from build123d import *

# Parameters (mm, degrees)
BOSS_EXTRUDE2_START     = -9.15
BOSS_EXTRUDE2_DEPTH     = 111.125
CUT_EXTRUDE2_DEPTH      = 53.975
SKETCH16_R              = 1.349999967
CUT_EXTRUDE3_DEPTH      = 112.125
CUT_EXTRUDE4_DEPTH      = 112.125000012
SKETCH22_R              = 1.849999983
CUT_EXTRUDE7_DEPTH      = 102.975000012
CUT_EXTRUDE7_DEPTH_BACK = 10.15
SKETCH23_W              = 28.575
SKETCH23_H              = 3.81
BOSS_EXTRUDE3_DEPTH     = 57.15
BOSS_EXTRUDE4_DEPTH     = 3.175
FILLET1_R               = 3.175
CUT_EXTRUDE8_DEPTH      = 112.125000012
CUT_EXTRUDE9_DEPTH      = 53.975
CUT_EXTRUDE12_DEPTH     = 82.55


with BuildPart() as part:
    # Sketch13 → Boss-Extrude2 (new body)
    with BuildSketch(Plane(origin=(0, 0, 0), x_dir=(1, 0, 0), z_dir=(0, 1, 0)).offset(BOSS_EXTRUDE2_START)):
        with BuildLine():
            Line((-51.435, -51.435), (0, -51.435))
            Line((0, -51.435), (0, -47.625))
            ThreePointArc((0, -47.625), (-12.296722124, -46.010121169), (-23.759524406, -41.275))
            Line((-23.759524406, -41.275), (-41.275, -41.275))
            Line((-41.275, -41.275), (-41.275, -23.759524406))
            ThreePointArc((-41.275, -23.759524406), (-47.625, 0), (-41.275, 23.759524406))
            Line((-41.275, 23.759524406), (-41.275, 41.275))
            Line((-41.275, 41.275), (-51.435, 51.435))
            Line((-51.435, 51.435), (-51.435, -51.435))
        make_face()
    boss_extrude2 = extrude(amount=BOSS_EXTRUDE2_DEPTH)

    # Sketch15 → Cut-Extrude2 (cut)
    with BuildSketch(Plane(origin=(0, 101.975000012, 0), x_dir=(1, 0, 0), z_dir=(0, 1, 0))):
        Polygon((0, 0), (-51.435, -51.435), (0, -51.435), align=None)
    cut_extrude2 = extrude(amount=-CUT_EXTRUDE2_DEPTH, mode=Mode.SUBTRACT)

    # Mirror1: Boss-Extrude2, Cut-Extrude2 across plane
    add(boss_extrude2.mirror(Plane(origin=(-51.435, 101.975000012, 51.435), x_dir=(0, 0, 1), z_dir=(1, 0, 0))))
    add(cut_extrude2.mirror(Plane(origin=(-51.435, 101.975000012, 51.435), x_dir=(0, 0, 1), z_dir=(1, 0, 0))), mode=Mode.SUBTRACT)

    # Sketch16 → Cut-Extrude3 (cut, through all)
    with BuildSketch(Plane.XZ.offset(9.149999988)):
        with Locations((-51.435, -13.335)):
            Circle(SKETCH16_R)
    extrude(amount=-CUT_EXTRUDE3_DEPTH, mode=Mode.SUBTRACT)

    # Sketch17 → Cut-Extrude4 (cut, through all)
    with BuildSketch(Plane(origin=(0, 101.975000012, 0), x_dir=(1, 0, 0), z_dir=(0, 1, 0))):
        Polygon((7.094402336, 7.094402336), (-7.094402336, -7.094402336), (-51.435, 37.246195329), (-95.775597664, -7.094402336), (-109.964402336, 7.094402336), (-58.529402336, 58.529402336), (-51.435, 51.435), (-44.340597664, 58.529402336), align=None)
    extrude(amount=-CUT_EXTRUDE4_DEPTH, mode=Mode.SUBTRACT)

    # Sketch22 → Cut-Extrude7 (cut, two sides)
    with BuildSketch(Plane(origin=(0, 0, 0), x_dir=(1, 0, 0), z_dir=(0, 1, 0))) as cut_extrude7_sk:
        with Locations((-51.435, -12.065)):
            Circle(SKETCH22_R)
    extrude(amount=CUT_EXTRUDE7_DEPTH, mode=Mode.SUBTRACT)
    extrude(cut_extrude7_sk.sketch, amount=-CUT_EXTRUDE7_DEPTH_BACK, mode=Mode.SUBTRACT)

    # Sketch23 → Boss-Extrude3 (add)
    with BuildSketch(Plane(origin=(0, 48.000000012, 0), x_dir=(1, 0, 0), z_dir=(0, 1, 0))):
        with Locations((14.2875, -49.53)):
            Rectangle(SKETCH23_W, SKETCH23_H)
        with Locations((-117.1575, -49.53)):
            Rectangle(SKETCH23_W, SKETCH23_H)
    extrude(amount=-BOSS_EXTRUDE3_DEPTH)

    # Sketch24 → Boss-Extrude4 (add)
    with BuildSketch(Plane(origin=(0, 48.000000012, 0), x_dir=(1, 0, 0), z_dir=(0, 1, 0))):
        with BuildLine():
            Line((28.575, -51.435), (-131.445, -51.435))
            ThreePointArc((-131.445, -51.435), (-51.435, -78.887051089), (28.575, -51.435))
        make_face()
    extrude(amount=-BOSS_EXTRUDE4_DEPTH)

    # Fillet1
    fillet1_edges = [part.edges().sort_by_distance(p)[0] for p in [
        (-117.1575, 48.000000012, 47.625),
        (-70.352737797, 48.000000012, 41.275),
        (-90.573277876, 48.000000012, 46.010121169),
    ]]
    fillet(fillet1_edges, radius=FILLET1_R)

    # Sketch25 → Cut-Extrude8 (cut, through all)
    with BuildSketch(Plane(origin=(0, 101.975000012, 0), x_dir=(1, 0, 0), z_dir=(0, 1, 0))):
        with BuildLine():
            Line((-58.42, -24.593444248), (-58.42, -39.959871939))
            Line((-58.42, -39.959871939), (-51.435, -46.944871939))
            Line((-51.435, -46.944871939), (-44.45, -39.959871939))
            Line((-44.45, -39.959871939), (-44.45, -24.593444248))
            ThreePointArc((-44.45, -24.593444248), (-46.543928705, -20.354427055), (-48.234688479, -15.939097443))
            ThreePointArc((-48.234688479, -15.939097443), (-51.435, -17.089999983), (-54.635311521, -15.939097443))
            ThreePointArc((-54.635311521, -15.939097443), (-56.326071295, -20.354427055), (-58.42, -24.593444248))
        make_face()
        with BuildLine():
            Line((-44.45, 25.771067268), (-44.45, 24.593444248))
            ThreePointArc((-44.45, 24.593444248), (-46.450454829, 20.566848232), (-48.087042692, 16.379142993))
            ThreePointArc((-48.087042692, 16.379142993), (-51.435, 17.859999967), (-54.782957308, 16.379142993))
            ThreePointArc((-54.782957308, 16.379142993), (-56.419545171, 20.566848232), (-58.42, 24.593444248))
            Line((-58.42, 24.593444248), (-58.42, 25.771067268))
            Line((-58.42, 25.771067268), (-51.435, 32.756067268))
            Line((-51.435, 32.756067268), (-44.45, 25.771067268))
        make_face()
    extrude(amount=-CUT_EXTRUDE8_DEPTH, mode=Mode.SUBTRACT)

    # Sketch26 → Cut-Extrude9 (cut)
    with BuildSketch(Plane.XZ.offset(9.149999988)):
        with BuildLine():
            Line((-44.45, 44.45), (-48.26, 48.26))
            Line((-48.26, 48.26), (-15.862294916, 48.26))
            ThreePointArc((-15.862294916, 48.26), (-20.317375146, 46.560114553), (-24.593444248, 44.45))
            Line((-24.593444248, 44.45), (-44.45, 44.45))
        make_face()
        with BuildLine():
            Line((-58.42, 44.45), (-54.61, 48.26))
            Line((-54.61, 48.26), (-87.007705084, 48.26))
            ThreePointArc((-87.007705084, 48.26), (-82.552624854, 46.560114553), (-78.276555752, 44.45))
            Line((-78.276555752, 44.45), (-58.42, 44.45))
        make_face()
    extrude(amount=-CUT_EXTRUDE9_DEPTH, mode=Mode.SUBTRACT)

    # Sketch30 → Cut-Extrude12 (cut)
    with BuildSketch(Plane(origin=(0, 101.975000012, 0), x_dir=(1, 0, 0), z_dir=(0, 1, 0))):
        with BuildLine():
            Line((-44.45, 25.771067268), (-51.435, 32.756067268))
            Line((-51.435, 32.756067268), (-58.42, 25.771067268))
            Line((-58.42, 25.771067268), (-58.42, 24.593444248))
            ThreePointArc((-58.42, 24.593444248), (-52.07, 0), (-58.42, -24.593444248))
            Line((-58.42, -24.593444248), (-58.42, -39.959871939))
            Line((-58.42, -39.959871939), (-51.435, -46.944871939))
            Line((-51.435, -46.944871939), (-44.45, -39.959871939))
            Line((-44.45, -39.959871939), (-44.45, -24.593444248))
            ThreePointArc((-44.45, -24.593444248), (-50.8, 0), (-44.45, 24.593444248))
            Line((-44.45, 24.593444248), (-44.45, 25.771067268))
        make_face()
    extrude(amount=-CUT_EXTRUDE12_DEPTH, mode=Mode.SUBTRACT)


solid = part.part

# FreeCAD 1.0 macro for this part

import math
import FreeCAD as App
import Part
import Sketcher
Q = App.Units.Quantity


def edges_at(feature, points):
    """Names of the edges that pass closest to the given points."""
    edges = feature.Shape.Edges
    near = lambda p: min(range(len(edges)), key=lambda i: edges[i].distToShape(Part.Vertex(*p))[0])
    return sorted({f"Edge{near(p) + 1}" for p in points})

doc = App.newDocument("Part")
body = doc.addObject("PartDesign::Body", "Body")

sketch1 = body.newObject("Sketcher::SketchObject", "Sketch")
sketch1.AttachmentSupport = (doc.getObject("XZ_Plane"), [""])
sketch1.MapMode = "FlatFace"
sketch1.AttachmentOffset = App.Placement(App.Vector(0, 0, 9.15), App.Rotation())
sketch1.addGeometry(Part.LineSegment(App.Vector(-51.435, 51.435, 0), App.Vector(0, 51.435, 0)), False)
sketch1.addGeometry(Part.LineSegment(App.Vector(0, 51.435, 0), App.Vector(0, 47.625, 0)), False)
sketch1.addGeometry(Part.ArcOfCircle(Part.Circle(App.Vector(0, 0, 0), App.Vector(0, 0, 1), 47.625), math.radians(90), math.radians(119.926435)), False)
sketch1.addGeometry(Part.LineSegment(App.Vector(-23.759524, 41.275, 0), App.Vector(-41.275, 41.275, 0)), False)
sketch1.addGeometry(Part.LineSegment(App.Vector(-41.275, 41.275, 0), App.Vector(-41.275, 23.759524, 0)), False)
sketch1.addGeometry(Part.ArcOfCircle(Part.Circle(App.Vector(0, 0, 0), App.Vector(0, 0, 1), 47.625), math.radians(150.073565), math.radians(209.926435)), False)
sketch1.addGeometry(Part.LineSegment(App.Vector(-41.275, -23.759524, 0), App.Vector(-41.275, -41.275, 0)), False)
sketch1.addGeometry(Part.LineSegment(App.Vector(-41.275, -41.275, 0), App.Vector(-51.435, -51.435, 0)), False)
sketch1.addGeometry(Part.LineSegment(App.Vector(-51.435, -51.435, 0), App.Vector(-51.435, 51.435, 0)), False)
sketch1.addConstraint(Sketcher.Constraint("Coincident", 0, 2, 1, 1))
sketch1.addConstraint(Sketcher.Constraint("Coincident", 1, 2, 2, 1))
sketch1.addConstraint(Sketcher.Constraint("Coincident", 2, 2, 3, 1))
sketch1.addConstraint(Sketcher.Constraint("Coincident", 3, 2, 4, 1))
sketch1.addConstraint(Sketcher.Constraint("Coincident", 4, 2, 5, 1))
sketch1.addConstraint(Sketcher.Constraint("Coincident", 5, 2, 6, 1))
sketch1.addConstraint(Sketcher.Constraint("Coincident", 6, 2, 7, 1))
sketch1.addConstraint(Sketcher.Constraint("Coincident", 7, 2, 8, 1))
sketch1.addConstraint(Sketcher.Constraint("Coincident", 8, 2, 0, 1))
sketch1.addConstraint(Sketcher.Constraint("Horizontal", 0))
sketch1.addConstraint(Sketcher.Constraint("Vertical", 1))
sketch1.addConstraint(Sketcher.Constraint("Horizontal", 3))
sketch1.addConstraint(Sketcher.Constraint("Vertical", 4))
sketch1.addConstraint(Sketcher.Constraint("Vertical", 6))
sketch1.addConstraint(Sketcher.Constraint("Vertical", 8))
sketch1.addConstraint(Sketcher.Constraint("Coincident", 2, 3, -1, 1))
sketch1.addConstraint(Sketcher.Constraint("Coincident", 5, 3, -1, 1))
sketch1.addConstraint(Sketcher.Constraint("Equal", 2, 5))
sketch1.addConstraint(Sketcher.Constraint("Symmetric", 3, 2, 6, 2, -1))
sketch1.addConstraint(Sketcher.Constraint("PointOnObject", 0, 2, -2))
sketch1.addConstraint(Sketcher.Constraint("Equal", 3, 4))
sketch1.addConstraint(Sketcher.Constraint("Angle", 7, Q("-135 deg")))
sketch1.addConstraint(Sketcher.Constraint("Radius", 2, Q("1.875 in")))
sketch1.addConstraint(Sketcher.Constraint("DistanceY", 1, 2, 1, 1, Q("0.15 in")))
sketch1.addConstraint(Sketcher.Constraint("DistanceY", 8, 1, 8, 2, Q("4.05 in")))
sketch1.addConstraint(Sketcher.Constraint("DistanceY", 2, 2, 0, 2, Q("0.4 in")))
pad1 = body.newObject("PartDesign::Pad", "Pad")
pad1.Profile = sketch1
pad1.Length = Q("4.375 in")
pad1.Reversed = True

sketch2 = body.newObject("Sketcher::SketchObject", "Sketch001")
sketch2.AttachmentSupport = (doc.getObject("XZ_Plane"), [""])
sketch2.MapMode = "FlatFace"
sketch2.AttachmentOffset = App.Placement(App.Vector(0, 0, -101.975), App.Rotation())
sketch2.addGeometry(Part.LineSegment(App.Vector(0, 0, 0), App.Vector(-51.435, 51.435, 0)), False)
sketch2.addGeometry(Part.LineSegment(App.Vector(-51.435, 51.435, 0), App.Vector(0, 51.435, 0)), False)
sketch2.addGeometry(Part.LineSegment(App.Vector(0, 51.435, 0), App.Vector(0, 0, 0)), False)
sketch2.addConstraint(Sketcher.Constraint("Coincident", 0, 2, 1, 1))
sketch2.addConstraint(Sketcher.Constraint("Coincident", 1, 2, 2, 1))
sketch2.addConstraint(Sketcher.Constraint("Coincident", 2, 2, 0, 1))
sketch2.addConstraint(Sketcher.Constraint("Horizontal", 1))
sketch2.addConstraint(Sketcher.Constraint("Vertical", 2))
sketch2.addConstraint(Sketcher.Constraint("Coincident", 2, 2, -1, 1))
sketch2.addConstraint(Sketcher.Constraint("Equal", 1, 2))
sketch2.addConstraint(Sketcher.Constraint("DistanceX", 1, 1, 1, 2, Q("2.025 in")))
pocket1 = body.newObject("PartDesign::Pocket", "Pocket")
pocket1.Profile = sketch2
pocket1.Length = Q("2.125 in")
pocket1.Reversed = True
doc.recompute()

datumplane = body.newObject("PartDesign::Plane", "DatumPlane")
datumplane.AttachmentSupport = (doc.getObject("YZ_Plane"), [""])
datumplane.MapMode = "FlatFace"
datumplane.AttachmentOffset = App.Placement(App.Vector(0, 0, -2.025 * 25.4), App.Rotation())
mirrored = body.newObject("PartDesign::Mirrored", "Mirrored")
mirrored.Originals = [pad1, pocket1]
mirrored.MirrorPlane = (datumplane, [""])
body.Tip = mirrored

sketch3 = body.newObject("Sketcher::SketchObject", "Sketch002")
sketch3.AttachmentSupport = (doc.getObject("XZ_Plane"), [""])
sketch3.MapMode = "FlatFace"
sketch3.AttachmentOffset = App.Placement(App.Vector(0, 0, 9.15), App.Rotation())
sketch3.addGeometry(Part.Circle(App.Vector(-51.435, -13.335, 0), App.Vector(0, 0, 1), 1.35), False)
sketch3.addConstraint(Sketcher.Constraint("Diameter", 0, Q("2.7 mm")))
sketch3.addConstraint(Sketcher.Constraint("DistanceX", 0, 3, -1, 1, Q("2.025 in")))
sketch3.addConstraint(Sketcher.Constraint("DistanceY", 0, 3, -1, 1, Q("0.525 in")))
pocket2 = body.newObject("PartDesign::Pocket", "Pocket001")
pocket2.Profile = sketch3
pocket2.Type = "ThroughAll"

sketch4 = body.newObject("Sketcher::SketchObject", "Sketch003")
sketch4.AttachmentSupport = (doc.getObject("XZ_Plane"), [""])
sketch4.MapMode = "FlatFace"
sketch4.AttachmentOffset = App.Placement(App.Vector(0, 0, -101.975), App.Rotation())
sketch4.addGeometry(Part.LineSegment(App.Vector(-7.094402, 7.094402, 0), App.Vector(7.094402, -7.094402, 0)), False)
sketch4.addGeometry(Part.LineSegment(App.Vector(7.094402, -7.094402, 0), App.Vector(-44.340598, -58.529402, 0)), False)
sketch4.addGeometry(Part.LineSegment(App.Vector(-44.340598, -58.529402, 0), App.Vector(-51.435, -51.435, 0)), False)
sketch4.addGeometry(Part.LineSegment(App.Vector(-51.435, -51.435, 0), App.Vector(-58.529402, -58.529402, 0)), False)
sketch4.addGeometry(Part.LineSegment(App.Vector(-58.529402, -58.529402, 0), App.Vector(-109.964402, -7.094402, 0)), False)
sketch4.addGeometry(Part.LineSegment(App.Vector(-109.964402, -7.094402, 0), App.Vector(-95.775598, 7.094402, 0)), False)
sketch4.addGeometry(Part.LineSegment(App.Vector(-95.775598, 7.094402, 0), App.Vector(-51.435, -37.246195, 0)), False)
sketch4.addGeometry(Part.LineSegment(App.Vector(-51.435, -37.246195, 0), App.Vector(-7.094402, 7.094402, 0)), False)
sketch4.addConstraint(Sketcher.Constraint("Coincident", 0, 2, 1, 1))
sketch4.addConstraint(Sketcher.Constraint("Coincident", 1, 2, 2, 1))
sketch4.addConstraint(Sketcher.Constraint("Coincident", 2, 2, 3, 1))
sketch4.addConstraint(Sketcher.Constraint("Coincident", 3, 2, 4, 1))
sketch4.addConstraint(Sketcher.Constraint("Coincident", 4, 2, 5, 1))
sketch4.addConstraint(Sketcher.Constraint("Coincident", 5, 2, 6, 1))
sketch4.addConstraint(Sketcher.Constraint("Coincident", 6, 2, 7, 1))
sketch4.addConstraint(Sketcher.Constraint("Coincident", 7, 2, 0, 1))
sketch4.addConstraint(Sketcher.Constraint("Symmetric", 0, 2, 7, 2, -1, 1))
sketch4.addConstraint(Sketcher.Constraint("Perpendicular", 0, 1))
sketch4.addConstraint(Sketcher.Constraint("Perpendicular", 1, 2))
sketch4.addConstraint(Sketcher.Constraint("Perpendicular", 2, 3))
sketch4.addConstraint(Sketcher.Constraint("Perpendicular", 3, 4))
sketch4.addConstraint(Sketcher.Constraint("Perpendicular", 4, 5))
sketch4.addConstraint(Sketcher.Constraint("Perpendicular", 5, 6))
sketch4.addConstraint(Sketcher.Constraint("Perpendicular", 6, 7))
sketch4.addConstraint(Sketcher.Constraint("Horizontal", 1, 2, 3, 2))
sketch4.addConstraint(Sketcher.Constraint("Horizontal", 0, 2, 4, 2))
sketch4.addConstraint(Sketcher.Constraint("Horizontal", 5, 2, 7, 2))
sketch4.addConstraint(Sketcher.Constraint("Vertical", 2, 2, 6, 2))
sketch4.addConstraint(Sketcher.Constraint("Distance", 0, Q("0.79 in")))
sketch4.addConstraint(Sketcher.Constraint("DistanceX", 5, 2, 0, 2, Q("4.05 in")))
sketch4.addConstraint(Sketcher.Constraint("Distance", 2, Q("0.395 in")))
pocket3 = body.newObject("PartDesign::Pocket", "Pocket002")
pocket3.Profile = sketch4
pocket3.Type = "ThroughAll"
pocket3.Reversed = True

sketch5 = body.newObject("Sketcher::SketchObject", "Sketch004")
sketch5.AttachmentSupport = (doc.getObject("XZ_Plane"), [""])
sketch5.MapMode = "FlatFace"
sketch5.addGeometry(Part.Circle(App.Vector(-51.435, 12.065, 0), App.Vector(0, 0, 1), 1.85), False)
sketch5.addConstraint(Sketcher.Constraint("Diameter", 0, Q("3.7 mm")))
sketch5.addConstraint(Sketcher.Constraint("DistanceX", 0, 3, -1, 1, Q("2.025 in")))
sketch5.addConstraint(Sketcher.Constraint("DistanceY", -1, 1, 0, 3, Q("0.475 in")))
pocket4 = body.newObject("PartDesign::Pocket", "Pocket003")
pocket4.Profile = sketch5
pocket4.Type = "ThroughAll"
pocket4.Midplane = True

sketch6 = body.newObject("Sketcher::SketchObject", "Sketch005")
sketch6.AttachmentSupport = (doc.getObject("XZ_Plane"), [""])
sketch6.MapMode = "FlatFace"
sketch6.AttachmentOffset = App.Placement(App.Vector(0, 0, -48), App.Rotation())
sketch6.addGeometry(Part.LineSegment(App.Vector(0, 47.625, 0), App.Vector(0, 51.435, 0)), False)
sketch6.addGeometry(Part.LineSegment(App.Vector(0, 51.435, 0), App.Vector(28.575, 51.435, 0)), False)
sketch6.addGeometry(Part.LineSegment(App.Vector(28.575, 51.435, 0), App.Vector(28.575, 47.625, 0)), False)
sketch6.addGeometry(Part.LineSegment(App.Vector(28.575, 47.625, 0), App.Vector(0, 47.625, 0)), False)
sketch6.addGeometry(Part.LineSegment(App.Vector(-131.445, 47.625, 0), App.Vector(-131.445, 51.435, 0)), False)
sketch6.addGeometry(Part.LineSegment(App.Vector(-131.445, 51.435, 0), App.Vector(-102.87, 51.435, 0)), False)
sketch6.addGeometry(Part.LineSegment(App.Vector(-102.87, 51.435, 0), App.Vector(-102.87, 47.625, 0)), False)
sketch6.addGeometry(Part.LineSegment(App.Vector(-102.87, 47.625, 0), App.Vector(-131.445, 47.625, 0)), False)
sketch6.addConstraint(Sketcher.Constraint("Coincident", 0, 2, 1, 1))
sketch6.addConstraint(Sketcher.Constraint("Coincident", 1, 2, 2, 1))
sketch6.addConstraint(Sketcher.Constraint("Coincident", 2, 2, 3, 1))
sketch6.addConstraint(Sketcher.Constraint("Coincident", 3, 2, 0, 1))
sketch6.addConstraint(Sketcher.Constraint("Coincident", 4, 2, 5, 1))
sketch6.addConstraint(Sketcher.Constraint("Coincident", 5, 2, 6, 1))
sketch6.addConstraint(Sketcher.Constraint("Coincident", 6, 2, 7, 1))
sketch6.addConstraint(Sketcher.Constraint("Coincident", 7, 2, 4, 1))
sketch6.addConstraint(Sketcher.Constraint("Vertical", 0))
sketch6.addConstraint(Sketcher.Constraint("Horizontal", 1))
sketch6.addConstraint(Sketcher.Constraint("Vertical", 2))
sketch6.addConstraint(Sketcher.Constraint("Horizontal", 3))
sketch6.addConstraint(Sketcher.Constraint("Vertical", 4))
sketch6.addConstraint(Sketcher.Constraint("Horizontal", 5))
sketch6.addConstraint(Sketcher.Constraint("Vertical", 6))
sketch6.addConstraint(Sketcher.Constraint("Horizontal", 7))
sketch6.addConstraint(Sketcher.Constraint("PointOnObject", 0, 2, -2))
sketch6.addConstraint(Sketcher.Constraint("Horizontal", 1, 2, 4, 2))
sketch6.addConstraint(Sketcher.Constraint("Horizontal", 3, 2, 6, 2))
sketch6.addConstraint(Sketcher.Constraint("Equal", 3, 5))
sketch6.addConstraint(Sketcher.Constraint("DistanceY", 0, 1, 0, 2, Q("0.15 in")))
sketch6.addConstraint(Sketcher.Constraint("DistanceX", 4, 2, 1, 2, Q("6.3 in")))
sketch6.addConstraint(Sketcher.Constraint("DistanceX", 1, 1, 1, 2, Q("1.125 in")))
sketch6.addConstraint(Sketcher.Constraint("DistanceY", -1, 1, 0, 2, Q("2.025 in")))
pad2 = body.newObject("PartDesign::Pad", "Pad001")
pad2.Profile = sketch6
pad2.Length = Q("2.25 in")

sketch7 = body.newObject("Sketcher::SketchObject", "Sketch006")
sketch7.AttachmentSupport = (doc.getObject("XZ_Plane"), [""])
sketch7.MapMode = "FlatFace"
sketch7.AttachmentOffset = App.Placement(App.Vector(0, 0, -48), App.Rotation())
sketch7.addGeometry(Part.LineSegment(App.Vector(28.575, 51.435, 0), App.Vector(-131.445, 51.435, 0)), False)
sketch7.addGeometry(Part.ArcOfCircle(Part.Circle(App.Vector(-51.435, -51.435, 0), App.Vector(0, 0, 1), 130.322051), math.radians(52.125016), math.radians(127.874984)), False)
sketch7.addConstraint(Sketcher.Constraint("Coincident", 0, 1, 1, 1))
sketch7.addConstraint(Sketcher.Constraint("Coincident", 1, 2, 0, 2))
sketch7.addConstraint(Sketcher.Constraint("Horizontal", 0))
sketch7.addConstraint(Sketcher.Constraint("DistanceX", 0, 2, 0, 1, Q("6.3 in")))
sketch7.addConstraint(Sketcher.Constraint("DistanceY", 1, 3, 0, 1, Q("4.05 in")))
sketch7.addConstraint(Sketcher.Constraint("DistanceX", 1, 3, -1, 1, Q("2.025 in")))
sketch7.addConstraint(Sketcher.Constraint("DistanceY", 1, 3, -1, 1, Q("2.025 in")))
pad3 = body.newObject("PartDesign::Pad", "Pad002")
pad3.Profile = sketch7
pad3.Length = Q("0.125 in")
doc.recompute()

fillet = body.newObject("PartDesign::Fillet", "Fillet")
fillet.Base = (pad3, edges_at(pad3, [(-117.157, 48, 47.625), (-70.353, 48, 41.275), (-90.573, 48, 46.01)]))
fillet.Radius = Q("0.125 in")

sketch8 = body.newObject("Sketcher::SketchObject", "Sketch007")
sketch8.AttachmentSupport = (doc.getObject("XZ_Plane"), [""])
sketch8.MapMode = "FlatFace"
sketch8.AttachmentOffset = App.Placement(App.Vector(0, 0, -101.975), App.Rotation())
sketch8.addGeometry(Part.LineSegment(App.Vector(-58.42, 24.593444, 0), App.Vector(-58.42, 39.959872, 0)), False)
sketch8.addGeometry(Part.LineSegment(App.Vector(-58.42, 39.959872, 0), App.Vector(-51.435, 46.944872, 0)), False)
sketch8.addGeometry(Part.LineSegment(App.Vector(-51.435, 46.944872, 0), App.Vector(-44.45, 39.959872, 0)), False)
sketch8.addGeometry(Part.LineSegment(App.Vector(-44.45, 39.959872, 0), App.Vector(-44.45, 24.593444, 0)), False)
sketch8.addGeometry(Part.ArcOfCircle(Part.Circle(App.Vector(0, 0, 0), App.Vector(0, 0, 1), 50.8), math.radians(151.044976), math.radians(161.713921)), False)
sketch8.addGeometry(Part.ArcOfCircle(Part.Circle(App.Vector(-51.435, 12.065, 0), App.Vector(0, 0, 1), 5.025), math.radians(50.440594), math.radians(129.559406)), False)
sketch8.addGeometry(Part.ArcOfCircle(Part.Circle(App.Vector(-102.87, 0, 0), App.Vector(0, 0, 1), 50.8), math.radians(18.286079), math.radians(28.955024)), False)
sketch8.addGeometry(Part.LineSegment(App.Vector(-44.45, -24.593444, 0), App.Vector(-44.45, -25.771067, 0)), False)
sketch8.addGeometry(Part.LineSegment(App.Vector(-44.45, -25.771067, 0), App.Vector(-51.435, -32.756067, 0)), False)
sketch8.addGeometry(Part.LineSegment(App.Vector(-51.435, -32.756067, 0), App.Vector(-58.42, -25.771067, 0)), False)
sketch8.addGeometry(Part.LineSegment(App.Vector(-58.42, -25.771067, 0), App.Vector(-58.42, -24.593444, 0)), False)
sketch8.addGeometry(Part.ArcOfCircle(Part.Circle(App.Vector(-102.87, 0, 0), App.Vector(0, 0, 1), 50.8), math.radians(-28.955024), math.radians(-18.809586)), False)
sketch8.addGeometry(Part.ArcOfCircle(Part.Circle(App.Vector(-51.435, -13.335, 0), App.Vector(0, 0, 1), 4.525), math.radians(-137.721201), math.radians(-42.278799)), False)
sketch8.addGeometry(Part.ArcOfCircle(Part.Circle(App.Vector(0, 0, 0), App.Vector(0, 0, 1), 50.8), math.radians(-161.190414), math.radians(-151.044976)), False)
sketch8.addConstraint(Sketcher.Constraint("Coincident", 0, 2, 1, 1))
sketch8.addConstraint(Sketcher.Constraint("Coincident", 1, 2, 2, 1))
sketch8.addConstraint(Sketcher.Constraint("Coincident", 2, 2, 3, 1))
sketch8.addConstraint(Sketcher.Constraint("Coincident", 3, 2, 4, 1))
sketch8.addConstraint(Sketcher.Constraint("Coincident", 4, 2, 5, 1))
sketch8.addConstraint(Sketcher.Constraint("Coincident", 5, 2, 6, 1))
sketch8.addConstraint(Sketcher.Constraint("Coincident", 6, 2, 0, 1))
sketch8.addConstraint(Sketcher.Constraint("Coincident", 7, 2, 8, 1))
sketch8.addConstraint(Sketcher.Constraint("Coincident", 8, 2, 9, 1))
sketch8.addConstraint(Sketcher.Constraint("Coincident", 9, 2, 10, 1))
sketch8.addConstraint(Sketcher.Constraint("Coincident", 10, 2, 11, 1))
sketch8.addConstraint(Sketcher.Constraint("Coincident", 11, 2, 12, 1))
sketch8.addConstraint(Sketcher.Constraint("Coincident", 12, 2, 13, 1))
sketch8.addConstraint(Sketcher.Constraint("Coincident", 13, 2, 7, 1))
sketch8.addConstraint(Sketcher.Constraint("Vertical", 0))
sketch8.addConstraint(Sketcher.Constraint("Vertical", 3))
sketch8.addConstraint(Sketcher.Constraint("Vertical", 7))
sketch8.addConstraint(Sketcher.Constraint("Vertical", 10))
sketch8.addConstraint(Sketcher.Constraint("Coincident", 4, 3, -1, 1))
sketch8.addConstraint(Sketcher.Constraint("Coincident", 13, 3, -1, 1))
sketch8.addConstraint(Sketcher.Constraint("Coincident", 11, 3, 6, 3))
sketch8.addConstraint(Sketcher.Constraint("Equal", 4, 6))
sketch8.addConstraint(Sketcher.Constraint("Equal", 6, 11))
sketch8.addConstraint(Sketcher.Constraint("Equal", 11, 13))
sketch8.addConstraint(Sketcher.Constraint("Symmetric", 6, 2, 10, 2, -1))
sketch8.addConstraint(Sketcher.Constraint("Perpendicular", 1, 2))
sketch8.addConstraint(Sketcher.Constraint("Perpendicular", 2, 8))
sketch8.addConstraint(Sketcher.Constraint("Perpendicular", 8, 9))
sketch8.addConstraint(Sketcher.Constraint("Horizontal", 0, 2, 2, 2))
sketch8.addConstraint(Sketcher.Constraint("Horizontal", 4, 2, 5, 2))
sketch8.addConstraint(Sketcher.Constraint("Horizontal", 3, 2, 6, 2))
sketch8.addConstraint(Sketcher.Constraint("Horizontal", 7, 2, 9, 2))
sketch8.addConstraint(Sketcher.Constraint("Horizontal", 11, 2, 12, 2))
sketch8.addConstraint(Sketcher.Constraint("Horizontal", 10, 2, 13, 2))
sketch8.addConstraint(Sketcher.Constraint("Vertical", 12, 3, 1, 2))
sketch8.addConstraint(Sketcher.Constraint("Radius", 4, Q("2 in")))
sketch8.addConstraint(Sketcher.Constraint("DistanceY", 12, 3, 5, 3, Q("1 in")))
sketch8.addConstraint(Sketcher.Constraint("DistanceX", 0, 2, -1, 1, Q("2.3 in")))
sketch8.addConstraint(Sketcher.Constraint("DistanceX", 6, 3, -1, 1, Q("4.05 in")))
sketch8.addConstraint(Sketcher.Constraint("Radius", 5, Q("5.025 mm")))
sketch8.addConstraint(Sketcher.Constraint("Radius", 12, Q("4.525 mm")))
sketch8.addConstraint(Sketcher.Constraint("DistanceY", -1, 1, 5, 3, Q("0.475 in")))
sketch8.addConstraint(Sketcher.Constraint("DistanceY", 0, 1, 0, 2, Q("15.366428 mm")))
sketch8.addConstraint(Sketcher.Constraint("DistanceY", 7, 2, 7, 1, Q("1.177623 mm")))
pocket5 = body.newObject("PartDesign::Pocket", "Pocket004")
pocket5.Profile = sketch8
pocket5.Type = "ThroughAll"
pocket5.Reversed = True

sketch9 = body.newObject("Sketcher::SketchObject", "Sketch008")
sketch9.AttachmentSupport = (doc.getObject("XZ_Plane"), [""])
sketch9.MapMode = "FlatFace"
sketch9.AttachmentOffset = App.Placement(App.Vector(0, 0, 9.15), App.Rotation())
sketch9.addGeometry(Part.LineSegment(App.Vector(-48.26, 48.26, 0), App.Vector(-44.45, 44.45, 0)), False)
sketch9.addGeometry(Part.LineSegment(App.Vector(-44.45, 44.45, 0), App.Vector(-24.593444, 44.45, 0)), False)
sketch9.addGeometry(Part.ArcOfCircle(Part.Circle(App.Vector(0, 0, 0), App.Vector(0, 0, 1), 50.8), math.radians(108.194872), math.radians(118.955024)), False)
sketch9.addGeometry(Part.LineSegment(App.Vector(-15.862295, 48.26, 0), App.Vector(-48.26, 48.26, 0)), False)
sketch9.addGeometry(Part.LineSegment(App.Vector(-58.42, 44.45, 0), App.Vector(-54.61, 48.26, 0)), False)
sketch9.addGeometry(Part.LineSegment(App.Vector(-54.61, 48.26, 0), App.Vector(-87.007705, 48.26, 0)), False)
sketch9.addGeometry(Part.ArcOfCircle(Part.Circle(App.Vector(-102.87, 0, 0), App.Vector(0, 0, 1), 50.8), math.radians(61.044976), math.radians(71.805128)), False)
sketch9.addGeometry(Part.LineSegment(App.Vector(-78.276556, 44.45, 0), App.Vector(-58.42, 44.45, 0)), False)
sketch9.addConstraint(Sketcher.Constraint("Coincident", 0, 2, 1, 1))
sketch9.addConstraint(Sketcher.Constraint("Coincident", 1, 2, 2, 2))
sketch9.addConstraint(Sketcher.Constraint("Coincident", 2, 1, 3, 1))
sketch9.addConstraint(Sketcher.Constraint("Coincident", 3, 2, 0, 1))
sketch9.addConstraint(Sketcher.Constraint("Coincident", 4, 2, 5, 1))
sketch9.addConstraint(Sketcher.Constraint("Coincident", 5, 2, 6, 2))
sketch9.addConstraint(Sketcher.Constraint("Coincident", 6, 1, 7, 1))
sketch9.addConstraint(Sketcher.Constraint("Coincident", 7, 2, 4, 1))
sketch9.addConstraint(Sketcher.Constraint("Horizontal", 1))
sketch9.addConstraint(Sketcher.Constraint("Horizontal", 3))
sketch9.addConstraint(Sketcher.Constraint("Horizontal", 5))
sketch9.addConstraint(Sketcher.Constraint("Horizontal", 7))
sketch9.addConstraint(Sketcher.Constraint("Coincident", 2, 3, -1, 1))
sketch9.addConstraint(Sketcher.Constraint("Equal", 2, 6))
sketch9.addConstraint(Sketcher.Constraint("PointOnObject", 6, 3, -1))
sketch9.addConstraint(Sketcher.Constraint("Perpendicular", 0, 4))
sketch9.addConstraint(Sketcher.Constraint("Horizontal", 3, 2, 4, 2))
sketch9.addConstraint(Sketcher.Constraint("Horizontal", 1, 2, 6, 1))
sketch9.addConstraint(Sketcher.Constraint("Equal", 3, 5))
sketch9.addConstraint(Sketcher.Constraint("Equal", 1, 7))
sketch9.addConstraint(Sketcher.Constraint("Radius", 2, Q("2 in")))
sketch9.addConstraint(Sketcher.Constraint("DistanceY", -1, 1, 2, 1, Q("1.9 in")))
sketch9.addConstraint(Sketcher.Constraint("DistanceX", 3, 2, -1, 1, Q("1.9 in")))
sketch9.addConstraint(Sketcher.Constraint("DistanceX", 7, 2, -1, 1, Q("2.3 in")))
sketch9.addConstraint(Sketcher.Constraint("DistanceX", 6, 3, -1, 1, Q("4.05 in")))
pocket6 = body.newObject("PartDesign::Pocket", "Pocket005")
pocket6.Profile = sketch9
pocket6.Length = Q("2.125 in")

sketch10 = body.newObject("Sketcher::SketchObject", "Sketch009")
sketch10.AttachmentSupport = (doc.getObject("XZ_Plane"), [""])
sketch10.MapMode = "FlatFace"
sketch10.AttachmentOffset = App.Placement(App.Vector(0, 0, -101.975), App.Rotation())
sketch10.addGeometry(Part.LineSegment(App.Vector(-44.45, -25.771067, 0), App.Vector(-51.435, -32.756067, 0)), False)
sketch10.addGeometry(Part.LineSegment(App.Vector(-51.435, -32.756067, 0), App.Vector(-58.42, -25.771067, 0)), False)
sketch10.addGeometry(Part.LineSegment(App.Vector(-58.42, -25.771067, 0), App.Vector(-58.42, -24.593444, 0)), False)
sketch10.addGeometry(Part.ArcOfCircle(Part.Circle(App.Vector(-102.87, 0, 0), App.Vector(0, 0, 1), 50.8), math.radians(-28.955024), math.radians(28.955024)), False)
sketch10.addGeometry(Part.LineSegment(App.Vector(-58.42, 24.593444, 0), App.Vector(-58.42, 39.959872, 0)), False)
sketch10.addGeometry(Part.LineSegment(App.Vector(-58.42, 39.959872, 0), App.Vector(-51.435, 46.944872, 0)), False)
sketch10.addGeometry(Part.LineSegment(App.Vector(-51.435, 46.944872, 0), App.Vector(-44.45, 39.959872, 0)), False)
sketch10.addGeometry(Part.LineSegment(App.Vector(-44.45, 39.959872, 0), App.Vector(-44.45, 24.593444, 0)), False)
sketch10.addGeometry(Part.ArcOfCircle(Part.Circle(App.Vector(0, 0, 0), App.Vector(0, 0, 1), 50.8), math.radians(151.044976), math.radians(208.955024)), False)
sketch10.addGeometry(Part.LineSegment(App.Vector(-44.45, -24.593444, 0), App.Vector(-44.45, -25.771067, 0)), False)
sketch10.addConstraint(Sketcher.Constraint("Coincident", 0, 2, 1, 1))
sketch10.addConstraint(Sketcher.Constraint("Coincident", 1, 2, 2, 1))
sketch10.addConstraint(Sketcher.Constraint("Coincident", 2, 2, 3, 1))
sketch10.addConstraint(Sketcher.Constraint("Coincident", 3, 2, 4, 1))
sketch10.addConstraint(Sketcher.Constraint("Coincident", 4, 2, 5, 1))
sketch10.addConstraint(Sketcher.Constraint("Coincident", 5, 2, 6, 1))
sketch10.addConstraint(Sketcher.Constraint("Coincident", 6, 2, 7, 1))
sketch10.addConstraint(Sketcher.Constraint("Coincident", 7, 2, 8, 1))
sketch10.addConstraint(Sketcher.Constraint("Coincident", 8, 2, 9, 1))
sketch10.addConstraint(Sketcher.Constraint("Coincident", 9, 2, 0, 1))
sketch10.addConstraint(Sketcher.Constraint("Vertical", 2))
sketch10.addConstraint(Sketcher.Constraint("Vertical", 4))
sketch10.addConstraint(Sketcher.Constraint("Vertical", 7))
sketch10.addConstraint(Sketcher.Constraint("Vertical", 9))
sketch10.addConstraint(Sketcher.Constraint("Coincident", 8, 3, -1, 1))
sketch10.addConstraint(Sketcher.Constraint("Equal", 3, 8))
sketch10.addConstraint(Sketcher.Constraint("Symmetric", 2, 2, 3, 2, -1))
sketch10.addConstraint(Sketcher.Constraint("Perpendicular", 0, 1))
sketch10.addConstraint(Sketcher.Constraint("Perpendicular", 1, 5))
sketch10.addConstraint(Sketcher.Constraint("Perpendicular", 5, 6))
sketch10.addConstraint(Sketcher.Constraint("Horizontal", 4, 2, 6, 2))
sketch10.addConstraint(Sketcher.Constraint("Horizontal", 3, 2, 7, 2))
sketch10.addConstraint(Sketcher.Constraint("Horizontal", 2, 2, 8, 2))
sketch10.addConstraint(Sketcher.Constraint("Horizontal", 1, 2, 9, 2))
sketch10.addConstraint(Sketcher.Constraint("Vertical", 0, 2, 5, 2))
sketch10.addConstraint(Sketcher.Constraint("Radius", 3, Q("2 in")))
sketch10.addConstraint(Sketcher.Constraint("DistanceX", 1, 2, -1, 1, Q("2.3 in")))
sketch10.addConstraint(Sketcher.Constraint("DistanceX", 3, 3, -1, 1, Q("4.05 in")))
sketch10.addConstraint(Sketcher.Constraint("DistanceY", 2, 1, 2, 2, Q("1.177623 mm")))
sketch10.addConstraint(Sketcher.Constraint("DistanceY", 4, 1, 4, 2, Q("15.366428 mm")))
pocket7 = body.newObject("PartDesign::Pocket", "Pocket006")
pocket7.Profile = sketch10
pocket7.Length = Q("3.25 in")
pocket7.Reversed = True

doc.recompute()
